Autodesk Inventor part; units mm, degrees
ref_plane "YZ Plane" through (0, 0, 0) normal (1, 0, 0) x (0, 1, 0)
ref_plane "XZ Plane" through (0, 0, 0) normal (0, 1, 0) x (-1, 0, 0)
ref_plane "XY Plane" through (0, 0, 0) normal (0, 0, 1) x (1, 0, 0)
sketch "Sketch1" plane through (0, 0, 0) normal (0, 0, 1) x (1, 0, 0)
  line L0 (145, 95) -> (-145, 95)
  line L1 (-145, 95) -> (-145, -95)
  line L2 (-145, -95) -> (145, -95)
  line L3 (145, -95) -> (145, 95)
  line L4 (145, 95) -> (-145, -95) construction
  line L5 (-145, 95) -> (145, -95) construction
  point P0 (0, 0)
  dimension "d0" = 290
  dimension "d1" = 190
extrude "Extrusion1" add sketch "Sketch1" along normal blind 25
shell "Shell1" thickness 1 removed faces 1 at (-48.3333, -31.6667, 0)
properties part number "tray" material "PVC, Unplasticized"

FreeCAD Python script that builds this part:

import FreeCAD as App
import Part
import Sketcher
from FreeCAD import Vector


def faces_at(feature, points):
    """Names of the faces that lie closest to the given points."""
    faces = feature.Shape.Faces
    near = lambda p: min(range(len(faces)), key=lambda i: faces[i].distToShape(Part.Vertex(*p))[0])
    return sorted({f"Face{near(p) + 1}" for p in points})


def add_polygon(sketch, points):
    """Adds a closed chain of lines whose ends are joined by coincident constraints."""
    first, n = sketch.GeometryCount, len(points)
    for a, b in zip(points, points[1:] + points[:1]):
        sketch.addGeometry(Part.LineSegment(App.Vector(*a, 0), App.Vector(*b, 0)), False)
    for i in range(n):
        sketch.addConstraint(Sketcher.Constraint("Coincident", first + i, 2, first + (i + 1) % n, 1))

doc = App.newDocument("Part")
body = doc.addObject("PartDesign::Body", "Body")

sketch1 = doc.addObject("Sketcher::SketchObject", "Sketch")
body.addObject(sketch1)
sketch1.AttachmentSupport = (doc.XY_Plane, [""])
sketch1.MapMode = "FlatFace"
add_polygon(sketch1, [(145, -95), (145, 95), (-145, 95), (-145, -95)])
sketch1.addConstraint(Sketcher.Constraint("Vertical", 0))
sketch1.addConstraint(Sketcher.Constraint("Horizontal", 1))
sketch1.addConstraint(Sketcher.Constraint("Vertical", 2))
sketch1.addConstraint(Sketcher.Constraint("Horizontal", 3))
sketch1.addConstraint(Sketcher.Constraint("Symmetric", 0, 2, 2, 2, -1, 1))
sketch1.addConstraint(Sketcher.Constraint("DistanceX", 1, 2, 1, 1, 290.0))
sketch1.addConstraint(Sketcher.Constraint("DistanceY", 0, 1, 0, 2, 190.0))
pad1 = doc.addObject("PartDesign::Pad", "Pad")
body.addObject(pad1)
pad1.Profile = sketch1
pad1.Length = 25
doc.recompute()

thickness = doc.addObject("PartDesign::Thickness", "Thickness")
body.addObject(thickness)
thickness.Base = (pad1, faces_at(pad1, [(-48.333, -31.667, 0)]))
thickness.Value = 1
thickness.Reversed = True
thickness.Join = "Intersection"

doc.recompute()
